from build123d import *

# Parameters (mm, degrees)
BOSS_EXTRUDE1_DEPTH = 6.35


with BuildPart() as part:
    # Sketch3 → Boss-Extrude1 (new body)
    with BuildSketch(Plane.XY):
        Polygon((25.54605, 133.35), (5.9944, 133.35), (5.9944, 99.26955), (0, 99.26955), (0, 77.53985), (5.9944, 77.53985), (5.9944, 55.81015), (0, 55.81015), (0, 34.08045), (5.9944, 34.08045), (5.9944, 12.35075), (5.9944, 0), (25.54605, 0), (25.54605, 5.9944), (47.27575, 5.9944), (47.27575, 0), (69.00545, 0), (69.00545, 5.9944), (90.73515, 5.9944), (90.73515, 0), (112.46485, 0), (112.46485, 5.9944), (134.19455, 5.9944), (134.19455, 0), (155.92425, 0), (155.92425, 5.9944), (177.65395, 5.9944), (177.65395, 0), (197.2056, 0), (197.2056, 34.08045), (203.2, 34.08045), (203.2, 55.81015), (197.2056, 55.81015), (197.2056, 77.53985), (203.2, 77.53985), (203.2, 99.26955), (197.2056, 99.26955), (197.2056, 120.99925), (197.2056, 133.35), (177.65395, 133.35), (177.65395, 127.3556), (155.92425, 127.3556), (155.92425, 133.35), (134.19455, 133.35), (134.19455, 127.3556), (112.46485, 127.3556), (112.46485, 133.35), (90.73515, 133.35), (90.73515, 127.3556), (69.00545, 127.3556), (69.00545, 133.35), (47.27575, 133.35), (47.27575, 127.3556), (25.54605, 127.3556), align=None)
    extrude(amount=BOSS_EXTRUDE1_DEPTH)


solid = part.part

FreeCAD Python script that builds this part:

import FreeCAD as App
import Part
import Sketcher

V = App.Vector
Q = App.Units.Quantity


def add_polygon(sketch, points):
    """Adds a closed chain of lines whose ends are joined by coincident constraints."""
    first, n = sketch.GeometryCount, len(points)
    for a, b in zip(points, points[1:] + points[:1]):
        sketch.addGeometry(Part.LineSegment(App.Vector(*a, 0), App.Vector(*b, 0)), False)
    for i in range(n):
        sketch.addConstraint(Sketcher.Constraint("Coincident", first + i, 2, first + (i + 1) % n, 1))

doc = App.newDocument("Part")
body = doc.addObject("PartDesign::Body", "Body")

# Sketch on XY plane
sketch1 = body.newObject("Sketcher::SketchObject", "Sketch")
sketch1.AttachmentSupport = (doc.getObject("XY_Plane"), [""])
sketch1.MapMode = "FlatFace"
add_polygon(sketch1, [(25.54605, 133.35), (5.9944, 133.35), (5.9944, 99.26955), (0, 99.26955), (0, 77.53985), (5.9944, 77.53985), (5.9944, 55.81015), (0, 55.81015), (0, 34.08045), (5.9944, 34.08045), (5.9944, 0), (25.54605, 0), (25.54605, 5.9944), (47.27575, 5.9944), (47.27575, 0), (69.00545, 0), (69.00545, 5.9944), (90.73515, 5.9944), (90.73515, 0), (112.46485, 0), (112.46485, 5.9944), (134.19455, 5.9944), (134.19455, 0), (155.92425, 0), (155.92425, 5.9944), (177.65395, 5.9944), (177.65395, 0), (197.2056, 0), (197.2056, 34.08045), (203.2, 34.08045), (203.2, 55.81015), (197.2056, 55.81015), (197.2056, 77.53985), (203.2, 77.53985), (203.2, 99.26955), (197.2056, 99.26955), (197.2056, 133.35), (177.65395, 133.35), (177.65395, 127.3556), (155.92425, 127.3556), (155.92425, 133.35), (134.19455, 133.35), (134.19455, 127.3556), (112.46485, 127.3556), (112.46485, 133.35), (90.73515, 133.35), (90.73515, 127.3556), (69.00545, 127.3556), (69.00545, 133.35), (47.27575, 133.35), (47.27575, 127.3556), (25.54605, 127.3556)])  # lines 0-51
sketch1.addConstraint(Sketcher.Constraint("Horizontal", 0))
sketch1.addConstraint(Sketcher.Constraint("Vertical", 1))
sketch1.addConstraint(Sketcher.Constraint("Horizontal", 2))
sketch1.addConstraint(Sketcher.Constraint("Vertical", 3))
sketch1.addConstraint(Sketcher.Constraint("Horizontal", 4))
sketch1.addConstraint(Sketcher.Constraint("Vertical", 5))
sketch1.addConstraint(Sketcher.Constraint("Horizontal", 6))
sketch1.addConstraint(Sketcher.Constraint("Vertical", 7))
sketch1.addConstraint(Sketcher.Constraint("Horizontal", 8))
sketch1.addConstraint(Sketcher.Constraint("Vertical", 9))
sketch1.addConstraint(Sketcher.Constraint("Horizontal", 10))
sketch1.addConstraint(Sketcher.Constraint("Vertical", 11))
sketch1.addConstraint(Sketcher.Constraint("Horizontal", 12))
sketch1.addConstraint(Sketcher.Constraint("Vertical", 13))
sketch1.addConstraint(Sketcher.Constraint("Horizontal", 14))
sketch1.addConstraint(Sketcher.Constraint("Vertical", 15))
sketch1.addConstraint(Sketcher.Constraint("Horizontal", 16))
sketch1.addConstraint(Sketcher.Constraint("Vertical", 17))
sketch1.addConstraint(Sketcher.Constraint("Horizontal", 18))
sketch1.addConstraint(Sketcher.Constraint("Vertical", 19))
sketch1.addConstraint(Sketcher.Constraint("Horizontal", 20))
sketch1.addConstraint(Sketcher.Constraint("Vertical", 21))
sketch1.addConstraint(Sketcher.Constraint("Horizontal", 22))
sketch1.addConstraint(Sketcher.Constraint("Vertical", 23))
sketch1.addConstraint(Sketcher.Constraint("Horizontal", 24))
sketch1.addConstraint(Sketcher.Constraint("Vertical", 25))
sketch1.addConstraint(Sketcher.Constraint("Horizontal", 26))
sketch1.addConstraint(Sketcher.Constraint("Vertical", 27))
sketch1.addConstraint(Sketcher.Constraint("Horizontal", 28))
sketch1.addConstraint(Sketcher.Constraint("Vertical", 29))
sketch1.addConstraint(Sketcher.Constraint("Horizontal", 30))
sketch1.addConstraint(Sketcher.Constraint("Vertical", 31))
sketch1.addConstraint(Sketcher.Constraint("Horizontal", 32))
sketch1.addConstraint(Sketcher.Constraint("Vertical", 33))
sketch1.addConstraint(Sketcher.Constraint("Horizontal", 34))
sketch1.addConstraint(Sketcher.Constraint("Vertical", 35))
sketch1.addConstraint(Sketcher.Constraint("Horizontal", 36))
sketch1.addConstraint(Sketcher.Constraint("Vertical", 37))
sketch1.addConstraint(Sketcher.Constraint("Horizontal", 38))
sketch1.addConstraint(Sketcher.Constraint("Vertical", 39))
sketch1.addConstraint(Sketcher.Constraint("Horizontal", 40))
sketch1.addConstraint(Sketcher.Constraint("Vertical", 41))
sketch1.addConstraint(Sketcher.Constraint("Horizontal", 42))
sketch1.addConstraint(Sketcher.Constraint("Vertical", 43))
sketch1.addConstraint(Sketcher.Constraint("Horizontal", 44))
sketch1.addConstraint(Sketcher.Constraint("Vertical", 45))
sketch1.addConstraint(Sketcher.Constraint("Horizontal", 46))
sketch1.addConstraint(Sketcher.Constraint("Vertical", 47))
sketch1.addConstraint(Sketcher.Constraint("Horizontal", 48))
sketch1.addConstraint(Sketcher.Constraint("Vertical", 49))
sketch1.addConstraint(Sketcher.Constraint("Horizontal", 50))
sketch1.addConstraint(Sketcher.Constraint("Vertical", 51))
sketch1.addConstraint(Sketcher.Constraint("PointOnObject", 2, 2, -2))
sketch1.addConstraint(Sketcher.Constraint("PointOnObject", 6, 2, -2))
sketch1.addConstraint(Sketcher.Constraint("PointOnObject", 9, 2, -1))
sketch1.addConstraint(Sketcher.Constraint("PointOnObject", 13, 2, -1))
sketch1.addConstraint(Sketcher.Constraint("PointOnObject", 17, 2, -1))
sketch1.addConstraint(Sketcher.Constraint("PointOnObject", 21, 2, -1))
sketch1.addConstraint(Sketcher.Constraint("PointOnObject", 25, 2, -1))
sketch1.addConstraint(Sketcher.Constraint("Horizontal", 12, 2, 15, 2))
sketch1.addConstraint(Sketcher.Constraint("Horizontal", 16, 2, 19, 2))
sketch1.addConstraint(Sketcher.Constraint("Horizontal", 20, 2, 23, 2))
sketch1.addConstraint(Sketcher.Constraint("Horizontal", 8, 2, 27, 2))
sketch1.addConstraint(Sketcher.Constraint("Horizontal", 6, 2, 29, 2))
sketch1.addConstraint(Sketcher.Constraint("Horizontal", 4, 2, 31, 2))
sketch1.addConstraint(Sketcher.Constraint("Horizontal", 2, 2, 33, 2))
sketch1.addConstraint(Sketcher.Constraint("Horizontal", 0, 2, 35, 2))
sketch1.addConstraint(Sketcher.Constraint("Horizontal", 36, 2, 39, 2))
sketch1.addConstraint(Sketcher.Constraint("Horizontal", 38, 2, 41, 2))
sketch1.addConstraint(Sketcher.Constraint("Horizontal", 40, 2, 43, 2))
sketch1.addConstraint(Sketcher.Constraint("Horizontal", 42, 2, 45, 2))
sketch1.addConstraint(Sketcher.Constraint("Horizontal", 44, 2, 47, 2))
sketch1.addConstraint(Sketcher.Constraint("Horizontal", 46, 2, 49, 2))
sketch1.addConstraint(Sketcher.Constraint("Vertical", 1, 2, 4, 2))
sketch1.addConstraint(Sketcher.Constraint("Vertical", 5, 2, 8, 2))
sketch1.addConstraint(Sketcher.Constraint("Vertical", 27, 2, 30, 2))
sketch1.addConstraint(Sketcher.Constraint("Vertical", 29, 2, 32, 2))
sketch1.addConstraint(Sketcher.Constraint("Vertical", 31, 2, 34, 2))
sketch1.addConstraint(Sketcher.Constraint("Vertical", 25, 2, 36, 2))
sketch1.addConstraint(Sketcher.Constraint("Vertical", 23, 2, 38, 2))
sketch1.addConstraint(Sketcher.Constraint("Vertical", 21, 2, 40, 2))
sketch1.addConstraint(Sketcher.Constraint("Vertical", 19, 2, 42, 2))
sketch1.addConstraint(Sketcher.Constraint("Vertical", 17, 2, 44, 2))
sketch1.addConstraint(Sketcher.Constraint("Vertical", 15, 2, 46, 2))
sketch1.addConstraint(Sketcher.Constraint("Vertical", 13, 2, 48, 2))
sketch1.addConstraint(Sketcher.Constraint("Vertical", 11, 2, 50, 2))
sketch1.addConstraint(Sketcher.Constraint("Equal", 12, 14))
sketch1.addConstraint(Sketcher.Constraint("Equal", 14, 16))
sketch1.addConstraint(Sketcher.Constraint("Equal", 16, 18))
sketch1.addConstraint(Sketcher.Constraint("Equal", 18, 20))
sketch1.addConstraint(Sketcher.Constraint("Equal", 20, 22))
sketch1.addConstraint(Sketcher.Constraint("Equal", 22, 24))
sketch1.addConstraint(Sketcher.Constraint("Equal", 10, 26))
sketch1.addConstraint(Sketcher.Constraint("Equal", 8, 28))
sketch1.addConstraint(Sketcher.Constraint("Equal", 50, 3))
sketch1.addConstraint(Sketcher.Constraint("Equal", 3, 5))
sketch1.addConstraint(Sketcher.Constraint("Equal", 5, 7))
sketch1.addConstraint(Sketcher.Constraint("Equal", 1, 9))
sketch1.addConstraint(Sketcher.Constraint("Equal", 34, 11))
sketch1.addConstraint(Sketcher.Constraint("Equal", 25, 37))
sketch1.addConstraint(Sketcher.Constraint("DistanceX", -1, 1, 28, 2, Q("8 in")))
sketch1.addConstraint(Sketcher.Constraint("DistanceX", 2, 2, 2, 1, Q("0.236 in")))
sketch1.addConstraint(Sketcher.Constraint("DistanceY", -1, 1, 0, 2, Q("5.25 in")))
sketch1.addConstraint(Sketcher.Constraint("DistanceX", 12, 1, 12, 2, Q("0.8555 in")))
pad1 = body.newObject("PartDesign::Pad", "Pad")
pad1.Profile = sketch1
pad1.Length = Q("0.25 in")

doc.recompute()
